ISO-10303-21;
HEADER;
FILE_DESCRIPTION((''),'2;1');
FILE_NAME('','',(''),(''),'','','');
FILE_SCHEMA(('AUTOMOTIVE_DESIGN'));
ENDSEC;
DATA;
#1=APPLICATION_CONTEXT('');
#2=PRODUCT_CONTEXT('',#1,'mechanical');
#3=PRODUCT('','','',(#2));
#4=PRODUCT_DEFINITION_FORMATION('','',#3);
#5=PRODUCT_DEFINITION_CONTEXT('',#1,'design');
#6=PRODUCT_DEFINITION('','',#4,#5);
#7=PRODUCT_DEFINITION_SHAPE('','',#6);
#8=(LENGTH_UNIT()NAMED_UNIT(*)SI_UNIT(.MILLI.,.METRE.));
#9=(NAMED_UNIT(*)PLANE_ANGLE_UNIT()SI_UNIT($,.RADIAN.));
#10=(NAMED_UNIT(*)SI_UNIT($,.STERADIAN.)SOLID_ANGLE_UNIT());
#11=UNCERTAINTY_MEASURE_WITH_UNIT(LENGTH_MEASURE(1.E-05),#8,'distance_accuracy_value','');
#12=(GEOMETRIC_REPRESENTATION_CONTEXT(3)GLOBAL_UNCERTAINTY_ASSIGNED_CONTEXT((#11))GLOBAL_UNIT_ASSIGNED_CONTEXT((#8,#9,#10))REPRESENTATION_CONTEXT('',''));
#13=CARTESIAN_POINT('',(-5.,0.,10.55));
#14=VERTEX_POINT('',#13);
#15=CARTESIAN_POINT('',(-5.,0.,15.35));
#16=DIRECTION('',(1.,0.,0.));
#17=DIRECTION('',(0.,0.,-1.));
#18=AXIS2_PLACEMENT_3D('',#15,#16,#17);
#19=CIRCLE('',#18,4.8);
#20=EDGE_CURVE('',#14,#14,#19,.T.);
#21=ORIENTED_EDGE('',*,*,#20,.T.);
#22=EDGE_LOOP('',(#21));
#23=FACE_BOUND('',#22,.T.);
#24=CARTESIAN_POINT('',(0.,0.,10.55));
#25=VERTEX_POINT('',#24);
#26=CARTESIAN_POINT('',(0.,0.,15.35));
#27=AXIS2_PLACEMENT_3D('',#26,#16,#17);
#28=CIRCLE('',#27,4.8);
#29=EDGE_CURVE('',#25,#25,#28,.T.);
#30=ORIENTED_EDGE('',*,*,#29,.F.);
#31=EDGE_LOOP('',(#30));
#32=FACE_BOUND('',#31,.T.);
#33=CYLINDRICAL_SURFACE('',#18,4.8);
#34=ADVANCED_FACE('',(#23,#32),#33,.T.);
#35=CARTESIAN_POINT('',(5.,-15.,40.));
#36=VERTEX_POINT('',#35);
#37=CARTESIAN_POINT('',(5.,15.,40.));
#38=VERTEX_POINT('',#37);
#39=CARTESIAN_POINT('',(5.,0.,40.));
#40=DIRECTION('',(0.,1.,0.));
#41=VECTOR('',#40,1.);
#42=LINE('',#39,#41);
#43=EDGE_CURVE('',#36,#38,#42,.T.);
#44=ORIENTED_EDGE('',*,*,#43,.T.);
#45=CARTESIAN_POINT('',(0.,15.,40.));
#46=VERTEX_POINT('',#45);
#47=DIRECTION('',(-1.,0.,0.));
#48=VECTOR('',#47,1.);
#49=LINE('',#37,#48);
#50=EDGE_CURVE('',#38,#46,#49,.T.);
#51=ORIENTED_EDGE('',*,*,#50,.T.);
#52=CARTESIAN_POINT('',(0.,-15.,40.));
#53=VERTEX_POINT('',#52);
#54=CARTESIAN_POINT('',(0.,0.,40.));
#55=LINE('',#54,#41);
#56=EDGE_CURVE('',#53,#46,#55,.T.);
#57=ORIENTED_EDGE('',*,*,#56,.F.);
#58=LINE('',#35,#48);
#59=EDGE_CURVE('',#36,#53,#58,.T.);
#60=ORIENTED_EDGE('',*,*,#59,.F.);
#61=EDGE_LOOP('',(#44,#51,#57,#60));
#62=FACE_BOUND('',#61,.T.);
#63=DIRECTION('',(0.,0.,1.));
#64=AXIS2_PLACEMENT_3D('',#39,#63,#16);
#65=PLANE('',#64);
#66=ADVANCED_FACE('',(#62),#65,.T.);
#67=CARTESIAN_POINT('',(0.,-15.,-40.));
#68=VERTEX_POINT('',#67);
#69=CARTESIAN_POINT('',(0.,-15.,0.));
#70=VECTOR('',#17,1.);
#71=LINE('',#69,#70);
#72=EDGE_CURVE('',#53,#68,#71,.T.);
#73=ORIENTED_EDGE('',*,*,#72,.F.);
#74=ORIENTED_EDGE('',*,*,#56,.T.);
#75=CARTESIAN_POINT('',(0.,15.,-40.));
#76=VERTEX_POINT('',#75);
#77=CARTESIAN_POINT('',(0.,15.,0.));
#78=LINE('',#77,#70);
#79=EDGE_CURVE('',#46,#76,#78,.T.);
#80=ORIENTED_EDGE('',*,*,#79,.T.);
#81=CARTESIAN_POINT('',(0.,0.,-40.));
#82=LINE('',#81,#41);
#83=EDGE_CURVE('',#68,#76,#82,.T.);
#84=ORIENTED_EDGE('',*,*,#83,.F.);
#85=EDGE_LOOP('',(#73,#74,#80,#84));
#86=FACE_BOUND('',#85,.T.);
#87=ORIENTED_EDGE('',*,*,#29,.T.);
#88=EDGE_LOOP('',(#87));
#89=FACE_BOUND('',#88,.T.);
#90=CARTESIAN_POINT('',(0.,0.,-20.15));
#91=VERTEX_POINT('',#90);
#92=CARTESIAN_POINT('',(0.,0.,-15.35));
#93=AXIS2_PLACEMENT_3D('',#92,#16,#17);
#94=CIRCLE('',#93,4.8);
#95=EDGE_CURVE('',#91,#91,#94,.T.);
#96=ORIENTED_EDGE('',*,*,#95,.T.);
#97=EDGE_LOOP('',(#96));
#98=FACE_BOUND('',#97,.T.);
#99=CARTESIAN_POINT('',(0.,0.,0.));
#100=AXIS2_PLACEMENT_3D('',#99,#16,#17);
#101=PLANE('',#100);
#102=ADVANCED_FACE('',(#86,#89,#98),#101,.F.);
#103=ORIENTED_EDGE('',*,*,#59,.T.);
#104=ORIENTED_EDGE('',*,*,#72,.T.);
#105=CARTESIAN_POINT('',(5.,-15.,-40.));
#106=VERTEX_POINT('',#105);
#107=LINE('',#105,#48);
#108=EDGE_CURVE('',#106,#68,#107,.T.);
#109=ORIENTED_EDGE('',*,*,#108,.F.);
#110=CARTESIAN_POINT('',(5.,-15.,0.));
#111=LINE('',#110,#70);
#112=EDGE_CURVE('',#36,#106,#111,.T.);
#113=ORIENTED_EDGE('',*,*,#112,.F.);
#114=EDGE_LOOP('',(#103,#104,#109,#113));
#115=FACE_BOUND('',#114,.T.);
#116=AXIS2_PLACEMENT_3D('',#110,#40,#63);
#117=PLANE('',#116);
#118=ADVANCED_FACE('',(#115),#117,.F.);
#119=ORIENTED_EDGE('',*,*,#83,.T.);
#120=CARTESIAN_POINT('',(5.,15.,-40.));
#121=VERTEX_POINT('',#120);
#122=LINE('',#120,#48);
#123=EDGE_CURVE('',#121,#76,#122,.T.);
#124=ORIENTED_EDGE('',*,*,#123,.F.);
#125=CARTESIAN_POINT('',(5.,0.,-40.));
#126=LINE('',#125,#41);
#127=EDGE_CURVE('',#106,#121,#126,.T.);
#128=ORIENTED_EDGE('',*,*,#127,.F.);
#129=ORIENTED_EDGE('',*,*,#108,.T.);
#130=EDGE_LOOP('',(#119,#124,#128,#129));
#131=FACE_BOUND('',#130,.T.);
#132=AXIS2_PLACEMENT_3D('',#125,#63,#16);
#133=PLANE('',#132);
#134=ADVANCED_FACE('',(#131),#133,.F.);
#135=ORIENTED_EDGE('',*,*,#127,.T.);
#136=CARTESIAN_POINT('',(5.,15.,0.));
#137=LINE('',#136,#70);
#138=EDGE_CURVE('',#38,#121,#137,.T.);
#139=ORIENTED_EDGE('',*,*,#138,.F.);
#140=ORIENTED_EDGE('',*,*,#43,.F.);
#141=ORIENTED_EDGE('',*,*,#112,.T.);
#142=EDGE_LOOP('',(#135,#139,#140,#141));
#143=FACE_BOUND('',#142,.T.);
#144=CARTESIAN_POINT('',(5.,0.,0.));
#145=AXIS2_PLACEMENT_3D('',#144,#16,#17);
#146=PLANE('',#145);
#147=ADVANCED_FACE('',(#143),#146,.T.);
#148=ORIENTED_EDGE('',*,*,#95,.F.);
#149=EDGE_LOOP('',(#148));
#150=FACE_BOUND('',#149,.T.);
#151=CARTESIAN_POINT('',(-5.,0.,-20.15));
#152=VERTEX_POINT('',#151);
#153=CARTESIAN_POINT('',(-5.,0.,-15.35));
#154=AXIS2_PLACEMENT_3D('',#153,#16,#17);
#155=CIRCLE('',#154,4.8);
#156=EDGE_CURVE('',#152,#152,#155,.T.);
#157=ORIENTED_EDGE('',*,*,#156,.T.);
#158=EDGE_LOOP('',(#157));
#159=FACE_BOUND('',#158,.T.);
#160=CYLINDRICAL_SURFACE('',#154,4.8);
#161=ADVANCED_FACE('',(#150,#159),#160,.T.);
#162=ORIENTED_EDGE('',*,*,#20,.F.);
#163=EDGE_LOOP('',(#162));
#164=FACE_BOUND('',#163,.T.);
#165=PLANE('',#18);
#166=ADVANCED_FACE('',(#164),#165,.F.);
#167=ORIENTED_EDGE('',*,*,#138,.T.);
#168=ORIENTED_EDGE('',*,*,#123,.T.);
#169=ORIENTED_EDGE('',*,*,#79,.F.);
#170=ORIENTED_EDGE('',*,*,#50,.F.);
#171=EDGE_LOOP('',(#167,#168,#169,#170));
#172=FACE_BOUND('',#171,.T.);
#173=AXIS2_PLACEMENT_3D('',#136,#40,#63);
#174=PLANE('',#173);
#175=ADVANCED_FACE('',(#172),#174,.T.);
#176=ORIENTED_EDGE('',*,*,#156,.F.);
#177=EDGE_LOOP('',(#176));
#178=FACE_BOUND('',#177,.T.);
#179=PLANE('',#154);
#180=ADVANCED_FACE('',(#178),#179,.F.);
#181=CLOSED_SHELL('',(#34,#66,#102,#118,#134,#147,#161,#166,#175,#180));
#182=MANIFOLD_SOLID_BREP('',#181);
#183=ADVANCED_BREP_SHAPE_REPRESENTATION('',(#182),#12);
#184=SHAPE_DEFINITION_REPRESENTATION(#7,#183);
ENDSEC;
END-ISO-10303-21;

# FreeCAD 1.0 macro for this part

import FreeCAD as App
import Part
import Sketcher


def add_polygon(sketch, points):
    """Adds a closed chain of lines whose ends are joined by coincident constraints."""
    first, n = sketch.GeometryCount, len(points)
    for a, b in zip(points, points[1:] + points[:1]):
        sketch.addGeometry(Part.LineSegment(App.Vector(*a, 0), App.Vector(*b, 0)), False)
    for i in range(n):
        sketch.addConstraint(Sketcher.Constraint("Coincident", first + i, 2, first + (i + 1) % n, 1))

doc = App.newDocument("Part")
params = doc.addObject("Spreadsheet::Sheet", "Params")
for row, (alias, value) in enumerate([
    ("sketch1_width", "30 mm"),
    ("sketch1_height", "80 mm"),
    ("pad1_length", "5 mm"),
    ("sketch2_diameter", "9.6 mm"),
    ("pad2_length", "5 mm"),
], start=1):
    params.set(f"A{row}", alias)
    params.set(f"B{row}", "=" + value)
    params.setAlias(f"B{row}", alias)

body = doc.addObject("PartDesign::Body", "Body")

# Sketch on YZ plane
sketch1 = body.newObject("Sketcher::SketchObject", "Sketch")
sketch1.AttachmentSupport = (doc.getObject("YZ_Plane"), [""])
sketch1.MapMode = "FlatFace"
add_polygon(sketch1, [(-15, 40), (-15, -40), (15, -40), (15, 40)])  # lines 0-3
sketch1.addConstraint([
    Sketcher.Constraint("Vertical", 0),
    Sketcher.Constraint("Horizontal", 1),
    Sketcher.Constraint("Vertical", 2),
    Sketcher.Constraint("Horizontal", 3),
    Sketcher.Constraint("Symmetric", 0, 2, 2, 2, -1, 1),
    Sketcher.Constraint("DistanceX", 1, 1, 1, 2, 30.0),
    Sketcher.Constraint("DistanceY", 0, 2, 0, 1, 80.0),
])
sketch1.setExpression("Constraints[9]", "Params.sketch1_width")
sketch1.setExpression("Constraints[10]", "Params.sketch1_height")
pad1 = body.newObject("PartDesign::Pad", "Pad")
pad1.Profile = sketch1
pad1.setExpression("Length", "Params.pad1_length")

# Sketch on YZ plane
sketch2 = body.newObject("Sketcher::SketchObject", "Sketch001")
sketch2.AttachmentSupport = (doc.getObject("YZ_Plane"), [""])
sketch2.MapMode = "FlatFace"
sketch2.addGeometry([
    Part.Circle(App.Vector(0, 15.35, 0), App.Vector(0, 0, 1), 4.8),
    Part.Circle(App.Vector(0, -15.35, 0), App.Vector(0, 0, 1), 4.8),
], False)
sketch2.addConstraint([
    Sketcher.Constraint("Equal", 0, 1),
    Sketcher.Constraint("Symmetric", 0, 3, 1, 3, -1, 1),
    Sketcher.Constraint("PointOnObject", 0, 3, -2),
    Sketcher.Constraint("Diameter", 0, 9.6),
    Sketcher.Constraint("DistanceY", 1, 3, 0, 3, 30.7),
])
sketch2.setExpression("Constraints[3]", "Params.sketch2_diameter")
pad2 = body.newObject("PartDesign::Pad", "Pad001")
pad2.Profile = sketch2
pad2.setExpression("Length", "Params.pad2_length")
pad2.Reversed = True

doc.recompute()
